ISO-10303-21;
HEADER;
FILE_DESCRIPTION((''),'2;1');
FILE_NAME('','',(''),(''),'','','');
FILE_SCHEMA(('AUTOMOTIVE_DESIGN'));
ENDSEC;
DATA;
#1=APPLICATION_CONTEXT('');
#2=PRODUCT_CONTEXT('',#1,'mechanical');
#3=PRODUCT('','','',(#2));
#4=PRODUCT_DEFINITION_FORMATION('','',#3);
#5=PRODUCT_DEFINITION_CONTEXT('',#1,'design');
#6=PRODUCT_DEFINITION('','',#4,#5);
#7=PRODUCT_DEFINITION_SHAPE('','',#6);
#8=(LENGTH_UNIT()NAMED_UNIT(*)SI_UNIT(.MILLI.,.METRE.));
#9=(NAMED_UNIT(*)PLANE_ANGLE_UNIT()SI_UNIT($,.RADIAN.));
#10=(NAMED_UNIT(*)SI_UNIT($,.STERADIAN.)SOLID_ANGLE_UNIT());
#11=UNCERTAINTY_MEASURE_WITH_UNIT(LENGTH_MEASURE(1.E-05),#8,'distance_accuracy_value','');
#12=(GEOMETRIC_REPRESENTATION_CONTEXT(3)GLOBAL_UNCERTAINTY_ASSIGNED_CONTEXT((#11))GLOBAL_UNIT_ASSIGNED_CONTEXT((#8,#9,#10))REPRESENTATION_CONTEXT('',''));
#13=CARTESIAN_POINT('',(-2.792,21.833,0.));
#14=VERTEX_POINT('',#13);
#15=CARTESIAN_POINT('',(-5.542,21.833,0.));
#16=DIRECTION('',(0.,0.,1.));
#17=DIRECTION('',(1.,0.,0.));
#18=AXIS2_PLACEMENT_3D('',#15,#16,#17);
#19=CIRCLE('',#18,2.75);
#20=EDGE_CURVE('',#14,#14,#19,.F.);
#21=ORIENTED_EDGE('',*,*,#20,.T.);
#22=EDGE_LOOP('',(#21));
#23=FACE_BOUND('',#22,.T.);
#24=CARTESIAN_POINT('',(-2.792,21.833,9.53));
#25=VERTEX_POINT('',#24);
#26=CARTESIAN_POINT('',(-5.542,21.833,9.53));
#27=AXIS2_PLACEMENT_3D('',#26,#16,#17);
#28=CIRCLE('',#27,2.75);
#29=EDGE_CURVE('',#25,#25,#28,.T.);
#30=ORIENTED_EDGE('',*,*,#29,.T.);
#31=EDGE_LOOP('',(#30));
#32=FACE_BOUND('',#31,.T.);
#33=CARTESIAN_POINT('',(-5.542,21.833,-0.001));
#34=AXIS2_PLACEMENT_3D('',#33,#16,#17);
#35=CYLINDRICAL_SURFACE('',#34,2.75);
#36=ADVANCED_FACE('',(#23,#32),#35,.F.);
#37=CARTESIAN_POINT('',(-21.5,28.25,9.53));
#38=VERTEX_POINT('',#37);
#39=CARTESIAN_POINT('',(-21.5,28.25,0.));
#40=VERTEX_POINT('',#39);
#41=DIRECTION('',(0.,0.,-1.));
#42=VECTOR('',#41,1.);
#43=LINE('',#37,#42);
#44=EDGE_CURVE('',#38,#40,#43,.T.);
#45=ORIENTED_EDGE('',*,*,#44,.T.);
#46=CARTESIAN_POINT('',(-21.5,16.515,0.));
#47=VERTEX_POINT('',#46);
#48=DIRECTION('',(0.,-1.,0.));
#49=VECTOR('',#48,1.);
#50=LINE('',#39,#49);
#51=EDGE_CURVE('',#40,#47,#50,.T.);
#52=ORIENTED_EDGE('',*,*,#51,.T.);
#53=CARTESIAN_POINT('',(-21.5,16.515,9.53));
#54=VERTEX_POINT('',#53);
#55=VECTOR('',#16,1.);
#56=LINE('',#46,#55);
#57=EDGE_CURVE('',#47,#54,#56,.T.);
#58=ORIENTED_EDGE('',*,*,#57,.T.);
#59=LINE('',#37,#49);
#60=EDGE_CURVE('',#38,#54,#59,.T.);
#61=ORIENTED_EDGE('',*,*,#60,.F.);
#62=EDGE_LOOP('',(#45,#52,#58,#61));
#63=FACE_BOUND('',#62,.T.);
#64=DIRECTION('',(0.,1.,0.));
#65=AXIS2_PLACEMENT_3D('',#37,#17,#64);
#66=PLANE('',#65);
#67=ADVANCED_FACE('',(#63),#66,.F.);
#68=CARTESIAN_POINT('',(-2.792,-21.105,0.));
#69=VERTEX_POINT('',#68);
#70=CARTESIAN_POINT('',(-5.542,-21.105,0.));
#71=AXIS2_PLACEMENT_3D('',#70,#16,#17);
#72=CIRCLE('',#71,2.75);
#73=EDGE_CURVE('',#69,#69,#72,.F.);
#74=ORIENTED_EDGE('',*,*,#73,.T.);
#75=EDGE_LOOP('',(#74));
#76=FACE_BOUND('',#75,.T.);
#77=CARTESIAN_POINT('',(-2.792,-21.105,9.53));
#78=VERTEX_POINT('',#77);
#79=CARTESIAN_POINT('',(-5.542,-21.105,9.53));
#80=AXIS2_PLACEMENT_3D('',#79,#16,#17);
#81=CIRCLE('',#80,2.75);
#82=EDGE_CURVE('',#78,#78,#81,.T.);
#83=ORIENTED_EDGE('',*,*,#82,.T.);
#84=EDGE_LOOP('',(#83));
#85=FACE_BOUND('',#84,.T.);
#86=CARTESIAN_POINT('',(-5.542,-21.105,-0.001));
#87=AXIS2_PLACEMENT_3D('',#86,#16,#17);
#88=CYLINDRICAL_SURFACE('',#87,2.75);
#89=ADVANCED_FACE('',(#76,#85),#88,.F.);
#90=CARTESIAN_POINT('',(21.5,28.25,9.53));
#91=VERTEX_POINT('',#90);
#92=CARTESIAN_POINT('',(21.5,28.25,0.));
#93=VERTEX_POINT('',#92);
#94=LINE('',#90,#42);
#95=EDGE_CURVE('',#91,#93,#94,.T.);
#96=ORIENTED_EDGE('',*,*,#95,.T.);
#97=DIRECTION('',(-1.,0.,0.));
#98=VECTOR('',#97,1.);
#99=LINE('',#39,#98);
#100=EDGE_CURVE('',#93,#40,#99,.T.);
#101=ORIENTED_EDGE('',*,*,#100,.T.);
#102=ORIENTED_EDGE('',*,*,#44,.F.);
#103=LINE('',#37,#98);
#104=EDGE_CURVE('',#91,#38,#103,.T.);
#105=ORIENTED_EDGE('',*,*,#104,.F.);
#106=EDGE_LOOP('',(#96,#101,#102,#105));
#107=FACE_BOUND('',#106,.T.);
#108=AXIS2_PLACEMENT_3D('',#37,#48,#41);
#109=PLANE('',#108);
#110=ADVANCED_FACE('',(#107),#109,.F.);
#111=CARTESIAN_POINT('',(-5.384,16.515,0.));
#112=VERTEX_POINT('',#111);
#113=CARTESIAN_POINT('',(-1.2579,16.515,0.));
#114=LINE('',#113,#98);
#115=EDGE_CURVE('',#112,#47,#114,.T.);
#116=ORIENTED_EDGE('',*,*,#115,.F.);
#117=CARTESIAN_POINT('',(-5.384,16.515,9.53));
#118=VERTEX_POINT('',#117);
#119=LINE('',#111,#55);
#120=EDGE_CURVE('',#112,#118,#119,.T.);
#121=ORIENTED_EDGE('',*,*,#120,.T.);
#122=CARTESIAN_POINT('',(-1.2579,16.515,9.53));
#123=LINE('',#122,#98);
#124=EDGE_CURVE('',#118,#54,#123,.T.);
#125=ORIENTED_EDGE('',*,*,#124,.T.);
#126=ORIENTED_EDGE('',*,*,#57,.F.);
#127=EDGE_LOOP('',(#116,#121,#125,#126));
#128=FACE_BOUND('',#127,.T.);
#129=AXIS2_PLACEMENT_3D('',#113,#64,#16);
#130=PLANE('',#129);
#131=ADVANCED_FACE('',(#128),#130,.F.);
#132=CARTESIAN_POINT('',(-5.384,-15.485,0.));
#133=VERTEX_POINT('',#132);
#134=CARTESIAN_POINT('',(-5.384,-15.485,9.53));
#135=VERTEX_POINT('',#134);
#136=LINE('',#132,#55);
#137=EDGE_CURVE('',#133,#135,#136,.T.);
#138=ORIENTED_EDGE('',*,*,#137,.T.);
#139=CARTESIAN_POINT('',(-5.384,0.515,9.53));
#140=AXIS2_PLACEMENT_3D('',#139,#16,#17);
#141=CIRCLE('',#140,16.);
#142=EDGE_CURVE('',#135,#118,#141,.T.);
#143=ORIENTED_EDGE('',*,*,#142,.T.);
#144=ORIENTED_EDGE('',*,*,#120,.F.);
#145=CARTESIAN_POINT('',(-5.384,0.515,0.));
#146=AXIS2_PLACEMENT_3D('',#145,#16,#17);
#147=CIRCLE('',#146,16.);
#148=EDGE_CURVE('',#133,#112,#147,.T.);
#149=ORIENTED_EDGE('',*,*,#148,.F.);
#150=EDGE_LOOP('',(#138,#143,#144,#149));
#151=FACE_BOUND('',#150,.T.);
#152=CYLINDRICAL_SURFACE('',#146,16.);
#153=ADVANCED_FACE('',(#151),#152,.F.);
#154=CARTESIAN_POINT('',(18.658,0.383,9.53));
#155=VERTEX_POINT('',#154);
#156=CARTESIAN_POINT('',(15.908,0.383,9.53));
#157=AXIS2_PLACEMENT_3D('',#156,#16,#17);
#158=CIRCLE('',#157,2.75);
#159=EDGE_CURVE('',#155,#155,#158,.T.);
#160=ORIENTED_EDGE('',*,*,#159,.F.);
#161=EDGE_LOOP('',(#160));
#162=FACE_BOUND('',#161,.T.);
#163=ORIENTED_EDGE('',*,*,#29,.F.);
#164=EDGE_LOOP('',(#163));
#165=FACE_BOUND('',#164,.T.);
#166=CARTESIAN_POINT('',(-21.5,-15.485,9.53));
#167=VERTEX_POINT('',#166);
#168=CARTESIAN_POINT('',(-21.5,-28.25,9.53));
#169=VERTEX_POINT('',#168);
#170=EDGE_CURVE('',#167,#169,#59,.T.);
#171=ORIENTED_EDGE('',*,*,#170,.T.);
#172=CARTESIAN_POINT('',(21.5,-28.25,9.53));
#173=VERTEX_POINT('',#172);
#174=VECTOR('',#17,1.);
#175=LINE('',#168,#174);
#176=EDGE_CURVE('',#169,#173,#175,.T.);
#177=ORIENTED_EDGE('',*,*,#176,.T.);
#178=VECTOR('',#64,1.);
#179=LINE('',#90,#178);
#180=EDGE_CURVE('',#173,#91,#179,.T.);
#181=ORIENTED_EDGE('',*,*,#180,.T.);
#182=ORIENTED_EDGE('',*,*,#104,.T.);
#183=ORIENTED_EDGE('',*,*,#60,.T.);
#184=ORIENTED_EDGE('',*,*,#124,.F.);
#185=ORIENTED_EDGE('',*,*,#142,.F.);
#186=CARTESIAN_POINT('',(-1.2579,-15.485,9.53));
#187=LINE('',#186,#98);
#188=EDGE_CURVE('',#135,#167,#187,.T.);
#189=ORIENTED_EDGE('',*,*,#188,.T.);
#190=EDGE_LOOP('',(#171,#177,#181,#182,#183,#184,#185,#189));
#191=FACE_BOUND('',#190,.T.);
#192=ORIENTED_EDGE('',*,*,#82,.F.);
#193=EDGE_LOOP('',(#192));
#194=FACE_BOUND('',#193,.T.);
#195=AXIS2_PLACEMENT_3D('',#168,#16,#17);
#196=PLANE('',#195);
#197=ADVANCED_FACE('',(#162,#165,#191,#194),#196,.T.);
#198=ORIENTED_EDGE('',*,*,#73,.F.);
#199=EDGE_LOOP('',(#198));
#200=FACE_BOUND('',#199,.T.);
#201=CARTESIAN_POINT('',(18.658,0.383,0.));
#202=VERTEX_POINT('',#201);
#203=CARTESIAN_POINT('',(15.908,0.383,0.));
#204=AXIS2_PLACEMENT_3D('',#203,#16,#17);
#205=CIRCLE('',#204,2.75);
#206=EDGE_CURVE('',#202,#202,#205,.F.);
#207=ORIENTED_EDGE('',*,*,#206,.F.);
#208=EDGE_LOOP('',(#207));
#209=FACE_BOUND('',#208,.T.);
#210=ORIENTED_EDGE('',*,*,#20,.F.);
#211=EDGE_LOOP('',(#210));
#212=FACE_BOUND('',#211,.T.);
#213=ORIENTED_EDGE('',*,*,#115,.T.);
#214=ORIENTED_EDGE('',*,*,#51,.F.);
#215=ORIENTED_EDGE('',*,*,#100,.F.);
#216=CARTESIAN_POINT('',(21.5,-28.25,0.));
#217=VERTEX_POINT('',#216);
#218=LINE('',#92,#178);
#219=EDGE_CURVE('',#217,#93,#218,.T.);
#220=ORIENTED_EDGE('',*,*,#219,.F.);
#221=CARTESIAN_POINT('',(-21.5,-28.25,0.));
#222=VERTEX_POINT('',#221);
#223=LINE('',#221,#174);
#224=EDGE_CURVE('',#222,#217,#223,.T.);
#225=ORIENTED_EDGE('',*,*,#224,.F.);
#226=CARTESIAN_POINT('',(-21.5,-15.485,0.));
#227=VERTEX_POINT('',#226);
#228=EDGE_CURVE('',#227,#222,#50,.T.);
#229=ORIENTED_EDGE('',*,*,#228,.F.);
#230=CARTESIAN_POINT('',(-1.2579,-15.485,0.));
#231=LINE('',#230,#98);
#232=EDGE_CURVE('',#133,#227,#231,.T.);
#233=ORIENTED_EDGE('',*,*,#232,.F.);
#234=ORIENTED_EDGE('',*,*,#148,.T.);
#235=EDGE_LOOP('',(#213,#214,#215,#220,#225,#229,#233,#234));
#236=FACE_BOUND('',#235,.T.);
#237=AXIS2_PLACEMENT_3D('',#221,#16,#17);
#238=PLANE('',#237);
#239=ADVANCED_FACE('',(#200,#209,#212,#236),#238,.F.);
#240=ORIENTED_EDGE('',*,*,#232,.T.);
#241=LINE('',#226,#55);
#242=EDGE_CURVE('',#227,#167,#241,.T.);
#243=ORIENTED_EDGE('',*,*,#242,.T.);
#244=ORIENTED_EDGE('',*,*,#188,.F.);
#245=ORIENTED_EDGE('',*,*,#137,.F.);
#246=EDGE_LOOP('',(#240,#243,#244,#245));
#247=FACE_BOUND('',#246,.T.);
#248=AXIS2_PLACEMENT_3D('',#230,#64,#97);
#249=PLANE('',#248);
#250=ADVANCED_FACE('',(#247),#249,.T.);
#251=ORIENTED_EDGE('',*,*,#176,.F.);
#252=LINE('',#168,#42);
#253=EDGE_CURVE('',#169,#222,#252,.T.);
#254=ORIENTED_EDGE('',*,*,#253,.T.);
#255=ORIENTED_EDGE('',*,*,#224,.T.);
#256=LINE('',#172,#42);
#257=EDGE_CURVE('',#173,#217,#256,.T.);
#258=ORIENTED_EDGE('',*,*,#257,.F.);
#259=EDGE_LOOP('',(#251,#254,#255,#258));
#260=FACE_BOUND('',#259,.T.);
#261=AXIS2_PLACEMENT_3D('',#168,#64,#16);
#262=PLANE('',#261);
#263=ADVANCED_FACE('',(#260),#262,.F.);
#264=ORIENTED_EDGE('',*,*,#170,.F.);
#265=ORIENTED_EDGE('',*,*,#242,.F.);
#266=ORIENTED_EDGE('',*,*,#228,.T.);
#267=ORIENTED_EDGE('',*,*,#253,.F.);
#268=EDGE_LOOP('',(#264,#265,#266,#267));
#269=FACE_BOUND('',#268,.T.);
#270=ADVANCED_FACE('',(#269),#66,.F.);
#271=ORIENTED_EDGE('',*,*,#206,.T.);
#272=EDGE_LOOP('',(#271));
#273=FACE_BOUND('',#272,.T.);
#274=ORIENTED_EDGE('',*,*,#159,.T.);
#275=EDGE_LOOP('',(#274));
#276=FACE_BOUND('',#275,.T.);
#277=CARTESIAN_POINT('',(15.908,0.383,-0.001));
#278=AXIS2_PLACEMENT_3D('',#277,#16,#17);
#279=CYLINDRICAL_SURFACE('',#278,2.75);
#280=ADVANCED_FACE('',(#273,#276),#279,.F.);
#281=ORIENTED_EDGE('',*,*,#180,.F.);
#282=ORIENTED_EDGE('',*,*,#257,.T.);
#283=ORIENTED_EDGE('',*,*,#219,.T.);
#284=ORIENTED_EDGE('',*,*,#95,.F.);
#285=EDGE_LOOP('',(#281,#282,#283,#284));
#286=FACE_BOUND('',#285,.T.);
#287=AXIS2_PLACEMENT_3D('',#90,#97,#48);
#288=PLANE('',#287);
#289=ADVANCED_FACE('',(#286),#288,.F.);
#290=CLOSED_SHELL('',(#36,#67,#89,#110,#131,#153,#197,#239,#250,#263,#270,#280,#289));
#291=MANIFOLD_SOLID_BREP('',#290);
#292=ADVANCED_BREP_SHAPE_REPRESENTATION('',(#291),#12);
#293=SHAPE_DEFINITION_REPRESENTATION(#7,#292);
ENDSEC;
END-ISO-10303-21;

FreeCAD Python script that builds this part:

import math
import FreeCAD as App
import Part
import Sketcher
from FreeCAD import Vector
Q = App.Units.Quantity

doc = App.newDocument("Part")
body = doc.addObject("PartDesign::Body", "Body")

# Sketch on XY plane
sketch1 = doc.addObject("Sketcher::SketchObject", "Sketch")
body.addObject(sketch1)
sketch1.AttachmentSupport = (doc.XY_Plane, [""])
sketch1.MapMode = "FlatFace"
sketch1.addGeometry([
    Part.LineSegment(Vector(-21.5, 28.25, 0), Vector(-21.5, -28.25, 0)),
    Part.LineSegment(Vector(-21.5, -28.25, 0), Vector(21.5, -28.25, 0)),
    Part.LineSegment(Vector(21.5, -28.25, 0), Vector(21.5, 28.25, 0)),
    Part.LineSegment(Vector(21.5, 28.25, 0), Vector(-21.5, 28.25, 0)),
], False)
sketch1.addConstraint([
    Sketcher.Constraint("Coincident", 0, 2, 1, 1),
    Sketcher.Constraint("Coincident", 1, 2, 2, 1),
    Sketcher.Constraint("Coincident", 2, 2, 3, 1),
    Sketcher.Constraint("Coincident", 3, 2, 0, 1),
    Sketcher.Constraint("Vertical", 0),
    Sketcher.Constraint("Horizontal", 1),
    Sketcher.Constraint("Vertical", 2),
    Sketcher.Constraint("Horizontal", 3),
    Sketcher.Constraint("Symmetric", 0, 2, 2, 2, -1, 1),
    Sketcher.Constraint("DistanceX", 1, 1, 1, 2, Q("43 mm")),
    Sketcher.Constraint("DistanceY", 0, 2, 0, 1, Q("56.5 mm")),
])
pad1 = doc.addObject("PartDesign::Pad", "Pad")
body.addObject(pad1)
pad1.Profile = sketch1
pad1.Length = 9.53

# Sketch on XY plane
sketch2 = doc.addObject("Sketcher::SketchObject", "Sketch001")
body.addObject(sketch2)
sketch2.AttachmentSupport = (doc.XY_Plane, [""])
sketch2.MapMode = "FlatFace"
sketch2.AttachmentOffset = App.Placement(Vector(0, 0, 9.53), App.Rotation())
sketch2.addGeometry([
    Part.ArcOfCircle(Part.Circle(Vector(-5.384, 0.515, 0), Vector(0, 0, 1), 16), math.radians(-90), math.radians(90)),
    Part.LineSegment(Vector(-5.384, 16.515, 0), Vector(-21.5, 16.515, 0)),
    Part.LineSegment(Vector(-21.5, 16.515, 0), Vector(-21.5, -15.485, 0)),
    Part.LineSegment(Vector(-21.5, -15.485, 0), Vector(-5.384, -15.485, 0)),
], False)
sketch2.addConstraint([
    Sketcher.Constraint("Tangent", 0, 2, 1, 1),
    Sketcher.Constraint("Coincident", 1, 2, 2, 1),
    Sketcher.Constraint("Coincident", 2, 2, 3, 1),
    Sketcher.Constraint("Tangent", 3, 2, 0, 1),
    Sketcher.Constraint("Horizontal", 1),
    Sketcher.Constraint("Vertical", 2),
    Sketcher.Constraint("Horizontal", 3),
    Sketcher.Constraint("Radius", 0, Q("16 mm")),
    Sketcher.Constraint("DistanceX", 1, 2, -1, 1, Q("21.5 mm")),
    Sketcher.Constraint("DistanceX", 1, 2, 1, 1, Q("16.116 mm")),
    Sketcher.Constraint("DistanceY", -1, 1, 0, 3, Q("0.515 mm")),
])
pocket1 = doc.addObject("PartDesign::Pocket", "Pocket")
body.addObject(pocket1)
pocket1.Profile = sketch2
pocket1.Length = 9.53

# Sketch on XY plane
sketch3 = doc.addObject("Sketcher::SketchObject", "Sketch002")
body.addObject(sketch3)
sketch3.AttachmentSupport = (doc.XY_Plane, [""])
sketch3.MapMode = "FlatFace"
sketch3.AttachmentOffset = App.Placement(Vector(0, 0, 9.53), App.Rotation())
sketch3.addGeometry(Part.Circle(Vector(15.908, 0.383, 0), Vector(0, 0, 1), 2.75), False)
sketch3.addConstraint([
    Sketcher.Constraint("Diameter", 0, Q("5.5 mm")),
    Sketcher.Constraint("DistanceX", -1, 1, 0, 3, Q("15.908 mm")),
    Sketcher.Constraint("DistanceY", -1, 1, 0, 3, Q("0.383 mm")),
])
pocket2 = doc.addObject("PartDesign::Pocket", "Pocket001")
body.addObject(pocket2)
pocket2.Profile = sketch3
pocket2.Type = "UpToFirst"

# Sketch on XY plane
sketch4 = doc.addObject("Sketcher::SketchObject", "Sketch003")
body.addObject(sketch4)
sketch4.AttachmentSupport = (doc.XY_Plane, [""])
sketch4.MapMode = "FlatFace"
sketch4.AttachmentOffset = App.Placement(Vector(0, 0, 9.53), App.Rotation())
sketch4.addGeometry(Part.Circle(Vector(-5.542, 21.833, 0), Vector(0, 0, 1), 2.75), False)
sketch4.addConstraint([
    Sketcher.Constraint("Diameter", 0, Q("5.5 mm")),
    Sketcher.Constraint("DistanceX", 0, 3, -1, 1, Q("5.542 mm")),
    Sketcher.Constraint("DistanceY", -1, 1, 0, 3, Q("21.833 mm")),
])
pocket3 = doc.addObject("PartDesign::Pocket", "Pocket002")
body.addObject(pocket3)
pocket3.Profile = sketch4
pocket3.Type = "UpToFirst"

# Sketch on XY plane
sketch5 = doc.addObject("Sketcher::SketchObject", "Sketch004")
body.addObject(sketch5)
sketch5.AttachmentSupport = (doc.XY_Plane, [""])
sketch5.MapMode = "FlatFace"
sketch5.AttachmentOffset = App.Placement(Vector(0, 0, 9.53), App.Rotation())
sketch5.addGeometry(Part.Circle(Vector(-5.542, -21.105, 0), Vector(0, 0, 1), 2.75), False)
sketch5.addConstraint([
    Sketcher.Constraint("Diameter", 0, Q("5.5 mm")),
    Sketcher.Constraint("DistanceX", 0, 3, -1, 1, Q("5.542 mm")),
    Sketcher.Constraint("DistanceY", 0, 3, -1, 1, Q("21.105 mm")),
])
pocket4 = doc.addObject("PartDesign::Pocket", "Pocket003")
body.addObject(pocket4)
pocket4.Profile = sketch5
pocket4.Type = "UpToFirst"

doc.recompute()
